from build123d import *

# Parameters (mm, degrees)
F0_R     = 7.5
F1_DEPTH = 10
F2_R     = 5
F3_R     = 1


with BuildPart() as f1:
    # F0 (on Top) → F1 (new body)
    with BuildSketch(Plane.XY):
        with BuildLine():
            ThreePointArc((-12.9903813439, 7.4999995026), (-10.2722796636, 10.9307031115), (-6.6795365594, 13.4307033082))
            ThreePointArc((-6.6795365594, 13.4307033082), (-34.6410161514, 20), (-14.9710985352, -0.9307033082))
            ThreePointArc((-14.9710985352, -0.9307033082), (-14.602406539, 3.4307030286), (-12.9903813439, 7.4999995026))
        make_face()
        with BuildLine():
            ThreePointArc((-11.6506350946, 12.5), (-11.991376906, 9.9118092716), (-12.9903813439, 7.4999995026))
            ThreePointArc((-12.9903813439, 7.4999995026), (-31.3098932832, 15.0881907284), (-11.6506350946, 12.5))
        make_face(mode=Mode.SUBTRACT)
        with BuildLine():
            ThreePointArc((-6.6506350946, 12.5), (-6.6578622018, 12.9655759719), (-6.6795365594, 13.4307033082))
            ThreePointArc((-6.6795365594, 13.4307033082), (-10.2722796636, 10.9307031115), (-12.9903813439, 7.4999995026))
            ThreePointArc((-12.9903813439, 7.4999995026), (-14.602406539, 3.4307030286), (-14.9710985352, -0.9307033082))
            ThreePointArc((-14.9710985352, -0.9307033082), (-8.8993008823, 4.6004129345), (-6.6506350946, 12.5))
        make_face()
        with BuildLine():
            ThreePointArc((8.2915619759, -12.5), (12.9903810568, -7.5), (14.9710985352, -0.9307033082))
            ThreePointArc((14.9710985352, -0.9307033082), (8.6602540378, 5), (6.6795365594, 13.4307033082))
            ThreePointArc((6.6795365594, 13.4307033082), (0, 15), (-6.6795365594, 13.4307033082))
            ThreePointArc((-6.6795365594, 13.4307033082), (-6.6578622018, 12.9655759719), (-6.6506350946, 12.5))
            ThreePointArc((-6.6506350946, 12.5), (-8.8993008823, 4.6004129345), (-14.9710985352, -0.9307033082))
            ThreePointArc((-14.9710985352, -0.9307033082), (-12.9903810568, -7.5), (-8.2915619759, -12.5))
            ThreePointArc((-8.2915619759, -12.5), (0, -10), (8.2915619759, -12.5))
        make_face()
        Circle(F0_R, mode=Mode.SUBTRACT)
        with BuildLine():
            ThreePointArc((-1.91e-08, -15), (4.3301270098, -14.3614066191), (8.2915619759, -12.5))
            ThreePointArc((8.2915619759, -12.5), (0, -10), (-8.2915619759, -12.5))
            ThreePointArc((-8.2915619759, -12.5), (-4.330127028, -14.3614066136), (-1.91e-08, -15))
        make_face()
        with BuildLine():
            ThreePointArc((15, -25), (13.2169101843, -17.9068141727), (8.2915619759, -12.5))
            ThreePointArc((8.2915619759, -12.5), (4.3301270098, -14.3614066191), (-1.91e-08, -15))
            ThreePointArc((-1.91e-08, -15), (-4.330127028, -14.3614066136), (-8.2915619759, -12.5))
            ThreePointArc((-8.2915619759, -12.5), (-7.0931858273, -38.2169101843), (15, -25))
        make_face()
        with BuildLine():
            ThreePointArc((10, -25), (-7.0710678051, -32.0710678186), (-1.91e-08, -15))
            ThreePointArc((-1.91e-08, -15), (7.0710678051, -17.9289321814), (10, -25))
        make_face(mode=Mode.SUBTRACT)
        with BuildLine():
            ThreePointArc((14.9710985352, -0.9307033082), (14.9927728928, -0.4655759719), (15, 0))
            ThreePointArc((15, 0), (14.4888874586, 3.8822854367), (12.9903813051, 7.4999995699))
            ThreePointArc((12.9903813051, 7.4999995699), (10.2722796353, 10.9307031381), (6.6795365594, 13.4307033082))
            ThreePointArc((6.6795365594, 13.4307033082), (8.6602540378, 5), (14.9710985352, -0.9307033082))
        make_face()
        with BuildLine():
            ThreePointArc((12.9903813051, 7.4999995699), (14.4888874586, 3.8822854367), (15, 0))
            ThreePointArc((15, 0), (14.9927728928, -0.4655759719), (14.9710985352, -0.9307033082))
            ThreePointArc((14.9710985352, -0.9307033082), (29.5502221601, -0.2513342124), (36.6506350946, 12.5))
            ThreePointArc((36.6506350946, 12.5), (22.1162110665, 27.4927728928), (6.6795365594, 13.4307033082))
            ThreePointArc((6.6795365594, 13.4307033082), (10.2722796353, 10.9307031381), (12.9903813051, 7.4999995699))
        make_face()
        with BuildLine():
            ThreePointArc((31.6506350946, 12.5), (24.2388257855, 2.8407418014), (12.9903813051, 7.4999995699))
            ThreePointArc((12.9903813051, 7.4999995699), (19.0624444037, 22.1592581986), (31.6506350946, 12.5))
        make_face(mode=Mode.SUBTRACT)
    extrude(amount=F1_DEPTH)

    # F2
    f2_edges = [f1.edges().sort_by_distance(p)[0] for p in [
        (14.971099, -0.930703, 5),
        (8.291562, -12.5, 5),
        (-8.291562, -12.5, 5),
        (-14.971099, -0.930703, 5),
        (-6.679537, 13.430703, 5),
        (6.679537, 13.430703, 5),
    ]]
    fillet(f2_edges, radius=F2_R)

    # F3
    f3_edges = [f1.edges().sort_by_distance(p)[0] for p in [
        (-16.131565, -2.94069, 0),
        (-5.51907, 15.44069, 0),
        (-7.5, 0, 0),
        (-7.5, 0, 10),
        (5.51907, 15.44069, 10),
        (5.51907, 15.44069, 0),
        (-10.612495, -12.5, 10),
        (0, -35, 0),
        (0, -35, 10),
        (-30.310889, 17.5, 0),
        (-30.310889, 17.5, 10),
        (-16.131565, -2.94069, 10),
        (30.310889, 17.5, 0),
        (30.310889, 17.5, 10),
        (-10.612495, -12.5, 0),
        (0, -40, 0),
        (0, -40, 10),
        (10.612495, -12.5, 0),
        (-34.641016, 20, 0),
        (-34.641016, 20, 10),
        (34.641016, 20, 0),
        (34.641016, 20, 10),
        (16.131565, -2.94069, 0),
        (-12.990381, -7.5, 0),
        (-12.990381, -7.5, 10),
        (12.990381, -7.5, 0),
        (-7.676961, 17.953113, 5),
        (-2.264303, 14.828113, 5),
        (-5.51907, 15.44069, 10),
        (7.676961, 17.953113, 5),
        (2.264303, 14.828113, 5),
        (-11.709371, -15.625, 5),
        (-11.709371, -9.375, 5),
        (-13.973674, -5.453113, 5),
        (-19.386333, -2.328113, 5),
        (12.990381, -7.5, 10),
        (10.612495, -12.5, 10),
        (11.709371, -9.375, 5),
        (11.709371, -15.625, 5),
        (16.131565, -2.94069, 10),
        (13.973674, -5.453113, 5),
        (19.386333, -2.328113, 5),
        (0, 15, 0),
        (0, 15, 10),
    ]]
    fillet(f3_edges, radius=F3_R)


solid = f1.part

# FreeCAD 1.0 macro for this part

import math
import FreeCAD as App
import Part
import Sketcher
Q = App.Units.Quantity


def edges_at(feature, points):
    """Names of the edges that pass closest to the given points."""
    edges = feature.Shape.Edges
    near = lambda p: min(range(len(edges)), key=lambda i: edges[i].distToShape(Part.Vertex(*p))[0])
    return sorted({f"Edge{near(p) + 1}" for p in points})

doc = App.newDocument("Part")
body = doc.addObject("PartDesign::Body", "Body")

# Sketch on XY plane
sketch1 = body.newObject("Sketcher::SketchObject", "Sketch")
sketch1.AttachmentSupport = (doc.getObject("XY_Plane"), [""])
sketch1.MapMode = "FlatFace"
sketch1.addGeometry(Part.ArcOfCircle(Part.Circle(App.Vector(-21.650635, 12.5, 0), App.Vector(0, 0, 1), 15), math.radians(3.55731), math.radians(296.44269)), False)
sketch1.addGeometry(Part.ArcOfCircle(Part.Circle(App.Vector(0, 0, 0), App.Vector(0, 0, 1), 15), math.radians(-176.44269), math.radians(-123.55731)), False)
sketch1.addGeometry(Part.ArcOfCircle(Part.Circle(App.Vector(0, -25, 0), App.Vector(0, 0, 1), 15), math.radians(123.55731), math.radians(360)), False)
sketch1.addGeometry(Part.ArcOfCircle(Part.Circle(App.Vector(0, -25, 0), App.Vector(0, 0, 1), 15), math.radians(0), math.radians(56.44269)), False)
sketch1.addGeometry(Part.ArcOfCircle(Part.Circle(App.Vector(0, 0, 0), App.Vector(0, 0, 1), 15), math.radians(-56.44269), math.radians(-3.55731)), False)
sketch1.addGeometry(Part.ArcOfCircle(Part.Circle(App.Vector(21.650635, 12.5, 0), App.Vector(0, 0, 1), 15), math.radians(-116.44269), math.radians(0)), False)
sketch1.addGeometry(Part.ArcOfCircle(Part.Circle(App.Vector(21.650635, 12.5, 0), App.Vector(0, 0, 1), 15), math.radians(0), math.radians(176.44269)), False)
sketch1.addGeometry(Part.ArcOfCircle(Part.Circle(App.Vector(0, 0, 0), App.Vector(0, 0, 1), 15), math.radians(63.55731), math.radians(116.44269)), False)
sketch1.addGeometry(Part.ArcOfCircle(Part.Circle(App.Vector(0, -25, 0), App.Vector(0, 0, 1), 10), math.radians(0), math.radians(90)), False)
sketch1.addGeometry(Part.ArcOfCircle(Part.Circle(App.Vector(0, -25, 0), App.Vector(0, 0, 1), 10), math.radians(90), math.radians(360)), False)
sketch1.addGeometry(Part.ArcOfCircle(Part.Circle(App.Vector(-21.650635, 12.5, 0), App.Vector(0, 0, 1), 10), math.radians(-30.000003), math.radians(0)), False)
sketch1.addGeometry(Part.ArcOfCircle(Part.Circle(App.Vector(-21.650635, 12.5, 0), App.Vector(0, 0, 1), 10), math.radians(0), math.radians(329.999997)), False)
sketch1.addGeometry(Part.Circle(App.Vector(0, 0, 0), App.Vector(0, 0, 1), 7.5), False)
sketch1.addGeometry(Part.Circle(App.Vector(21.650635, 12.5, 0), App.Vector(0, 0, 1), 10), False)
sketch1.addConstraint(Sketcher.Constraint("Coincident", 0, 2, 1, 1))
sketch1.addConstraint(Sketcher.Constraint("Coincident", 1, 2, 2, 1))
sketch1.addConstraint(Sketcher.Constraint("Tangent", 2, 2, 3, 1))
sketch1.addConstraint(Sketcher.Constraint("Coincident", 3, 2, 4, 1))
sketch1.addConstraint(Sketcher.Constraint("Coincident", 4, 2, 5, 1))
sketch1.addConstraint(Sketcher.Constraint("Tangent", 5, 2, 6, 1))
sketch1.addConstraint(Sketcher.Constraint("Coincident", 6, 2, 7, 1))
sketch1.addConstraint(Sketcher.Constraint("Coincident", 7, 2, 0, 1))
sketch1.addConstraint(Sketcher.Constraint("Tangent", 8, 1, 9, 2))
sketch1.addConstraint(Sketcher.Constraint("Coincident", 9, 1, 8, 2))
sketch1.addConstraint(Sketcher.Constraint("Tangent", 10, 1, 11, 2))
sketch1.addConstraint(Sketcher.Constraint("Coincident", 11, 1, 10, 2))
sketch1.addConstraint(Sketcher.Constraint("Coincident", 1, 3, -1, 1))
sketch1.addConstraint(Sketcher.Constraint("Coincident", 4, 3, -1, 1))
sketch1.addConstraint(Sketcher.Constraint("Coincident", 7, 3, -1, 1))
sketch1.addConstraint(Sketcher.Constraint("Coincident", 12, 3, -1, 1))
sketch1.addConstraint(Sketcher.Constraint("Coincident", 8, 3, 2, 3))
sketch1.addConstraint(Sketcher.Constraint("Coincident", 10, 3, 0, 3))
sketch1.addConstraint(Sketcher.Constraint("Coincident", 13, 3, 5, 3))
sketch1.addConstraint(Sketcher.Constraint("Equal", 0, 1))
sketch1.addConstraint(Sketcher.Constraint("Equal", 1, 2))
sketch1.addConstraint(Sketcher.Constraint("Equal", 2, 3))
sketch1.addConstraint(Sketcher.Constraint("Equal", 3, 4))
sketch1.addConstraint(Sketcher.Constraint("Equal", 4, 5))
sketch1.addConstraint(Sketcher.Constraint("Equal", 5, 6))
sketch1.addConstraint(Sketcher.Constraint("Equal", 6, 7))
sketch1.addConstraint(Sketcher.Constraint("Equal", 9, 10))
sketch1.addConstraint(Sketcher.Constraint("Equal", 11, 13))
sketch1.addConstraint(Sketcher.Constraint("Symmetric", 0, 3, 5, 3, -2))
sketch1.addConstraint(Sketcher.Constraint("PointOnObject", 2, 3, -2))
sketch1.addConstraint(Sketcher.Constraint("PointOnObject", 9, 1, -2))
sketch1.addConstraint(Sketcher.Constraint("Horizontal", 9, 3, 2, 2))
sketch1.addConstraint(Sketcher.Constraint("Horizontal", 13, 3, 5, 2))
sketch1.addConstraint(Sketcher.Constraint("Horizontal", 2, 2, 8, 1))
sketch1.addConstraint(Sketcher.Constraint("Horizontal", 5, 2, 11, 1))
sketch1.addConstraint(Sketcher.Constraint("Diameter", 12, Q("15 mm")))
sketch1.addConstraint(Sketcher.Constraint("Diameter", 13, Q("20 mm")))
sketch1.addConstraint(Sketcher.Constraint("Radius", 0, Q("15 mm")))
sketch1.addConstraint(Sketcher.Constraint("DistanceY", 2, 3, -1, 1, Q("25 mm")))
sketch1.addConstraint(Sketcher.Constraint("DistanceY", 3, 2, 5, 2, Q("25 mm")))
sketch1.addConstraint(Sketcher.Constraint("DistanceY", 10, 1, 10, 3, Q("5 mm")))
sketch1.addConstraint(Sketcher.Constraint("DistanceX", -1, 1, 4, 2, Q("14.971099 mm")))
pad1 = body.newObject("PartDesign::Pad", "Pad")
pad1.Profile = sketch1
pad1.Length = 10
doc.recompute()

fillet = body.newObject("PartDesign::Fillet", "Fillet")
fillet.Base = (pad1, edges_at(pad1, [
    (14.971, -0.931, 5),
    (8.292, -12.5, 5),
    (-8.292, -12.5, 5),
    (-14.971, -0.931, 5),
    (-6.68, 13.431, 5),
    (6.68, 13.431, 5),
]))
fillet.Radius = 5
doc.recompute()

fillet2 = body.newObject("PartDesign::Fillet", "Fillet001")
fillet2.Base = (fillet, ["Edge1"])
fillet2.UseAllEdges = True
fillet2.Radius = 1

doc.recompute()
